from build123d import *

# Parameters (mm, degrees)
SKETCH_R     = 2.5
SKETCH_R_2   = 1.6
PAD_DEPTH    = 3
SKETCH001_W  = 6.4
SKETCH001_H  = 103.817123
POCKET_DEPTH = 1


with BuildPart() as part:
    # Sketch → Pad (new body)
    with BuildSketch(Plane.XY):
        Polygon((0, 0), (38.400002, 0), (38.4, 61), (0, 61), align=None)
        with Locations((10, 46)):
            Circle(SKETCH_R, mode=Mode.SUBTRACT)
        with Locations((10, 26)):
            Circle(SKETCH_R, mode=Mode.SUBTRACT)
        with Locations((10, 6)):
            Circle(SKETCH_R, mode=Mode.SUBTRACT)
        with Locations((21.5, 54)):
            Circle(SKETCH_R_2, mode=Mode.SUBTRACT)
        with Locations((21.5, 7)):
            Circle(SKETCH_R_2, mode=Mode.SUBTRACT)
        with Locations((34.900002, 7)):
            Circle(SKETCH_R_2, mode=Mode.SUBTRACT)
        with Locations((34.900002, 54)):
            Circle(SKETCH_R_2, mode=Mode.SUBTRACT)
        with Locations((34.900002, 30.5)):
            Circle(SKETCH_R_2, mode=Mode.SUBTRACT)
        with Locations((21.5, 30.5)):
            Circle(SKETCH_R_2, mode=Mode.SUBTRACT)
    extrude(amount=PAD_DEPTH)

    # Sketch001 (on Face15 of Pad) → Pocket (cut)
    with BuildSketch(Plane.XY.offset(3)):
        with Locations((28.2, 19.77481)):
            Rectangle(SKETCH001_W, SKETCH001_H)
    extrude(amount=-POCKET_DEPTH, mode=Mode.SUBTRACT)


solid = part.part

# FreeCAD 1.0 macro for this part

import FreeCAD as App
import Part
import Sketcher
Q = App.Units.Quantity


def add_polygon(sketch, points):
    """Adds a closed chain of lines whose ends are joined by coincident constraints."""
    first, n = sketch.GeometryCount, len(points)
    for a, b in zip(points, points[1:] + points[:1]):
        sketch.addGeometry(Part.LineSegment(App.Vector(*a, 0), App.Vector(*b, 0)), False)
    for i in range(n):
        sketch.addConstraint(Sketcher.Constraint("Coincident", first + i, 2, first + (i + 1) % n, 1))

doc = App.newDocument("Part")
params = doc.addObject("Spreadsheet::Sheet", "Params")
for row, (alias, value) in enumerate([
    ("sketch1_diameter", "5 mm"),
    ("sketch1_diameter2", "3.2 mm"),
    ("sketch1_height", "61 mm"),
    ("sketch1_width", "38.4 mm"),
    ("pad1_length", "3 mm"),
    ("sketch2_width", "6.4 mm"),
    ("pocket1_length", "1 mm"),
], start=1):
    params.set(f"A{row}", alias)
    params.set(f"B{row}", "=" + value)
    params.setAlias(f"B{row}", alias)

body = doc.addObject("PartDesign::Body", "Body")

sketch1 = body.newObject("Sketcher::SketchObject", "Sketch")
sketch1.AttachmentSupport = (doc.getObject("XY_Plane"), [""])
sketch1.MapMode = "FlatFace"
add_polygon(sketch1, [(0, 0), (38.4, 0), (38.4, 61), (0, 61)])
sketch1.addGeometry(Part.Circle(App.Vector(10, 6, 0), App.Vector(0, 0, 1), 2.5), False)
sketch1.addGeometry(Part.Circle(App.Vector(21.5, 7, 0), App.Vector(0, 0, 1), 1.6), False)
sketch1.addGeometry(Part.Circle(App.Vector(10, 26, 0), App.Vector(0, 0, 1), 2.5), False)
sketch1.addGeometry(Part.Circle(App.Vector(34.9, 7, 0), App.Vector(0, 0, 1), 1.6), False)
sketch1.addGeometry(Part.Circle(App.Vector(21.5, 30.5, 0), App.Vector(0, 0, 1), 1.6), False)
sketch1.addGeometry(Part.Circle(App.Vector(10, 46, 0), App.Vector(0, 0, 1), 2.5), False)
sketch1.addGeometry(Part.Circle(App.Vector(21.5, 54, 0), App.Vector(0, 0, 1), 1.6), False)
sketch1.addGeometry(Part.Circle(App.Vector(34.9, 30.5, 0), App.Vector(0, 0, 1), 1.6), False)
sketch1.addGeometry(Part.Circle(App.Vector(34.9, 54, 0), App.Vector(0, 0, 1), 1.6), False)
sketch1.addConstraint([
    Sketcher.Constraint("Horizontal", 0),
    Sketcher.Constraint("Horizontal", 2),
    Sketcher.Constraint("Vertical", 3),
    Sketcher.Constraint("Coincident", 3, 2, -1, 1),
    Sketcher.Constraint("Equal", 4, 6),
    Sketcher.Constraint("Equal", 5, 7),
    Sketcher.Constraint("Equal", 7, 8),
    Sketcher.Constraint("Equal", 6, 9),
    Sketcher.Constraint("Equal", 8, 10),
    Sketcher.Constraint("Equal", 10, 11),
    Sketcher.Constraint("Equal", 11, 12),
    Sketcher.Constraint("Horizontal", 5, 3, 7, 3),
    Sketcher.Constraint("Horizontal", 8, 3, 11, 3),
    Sketcher.Constraint("Horizontal", 10, 3, 12, 3),
    Sketcher.Constraint("Vertical", 4, 3, 6, 3),
    Sketcher.Constraint("Vertical", 5, 3, 8, 3),
    Sketcher.Constraint("Vertical", 6, 3, 9, 3),
    Sketcher.Constraint("Vertical", 8, 3, 10, 3),
    Sketcher.Constraint("Vertical", 7, 3, 11, 3),
    Sketcher.Constraint("Vertical", 11, 3, 12, 3),
    Sketcher.Constraint("Diameter", 4, 5.0),
    Sketcher.Constraint("Diameter", 5, 3.2),
    Sketcher.Constraint("DistanceY", 3, 2, 3, 1, 61.0),
    Sketcher.Constraint("Angle", 1, Q("90.000002 deg")),
    Sketcher.Constraint("DistanceX", 2, 2, 2, 1, 38.4),
    Sketcher.Constraint("DistanceX", -1, 1, 4, 3, 10.0),
    Sketcher.Constraint("DistanceY", -1, 1, 4, 3, 6.0),
    Sketcher.Constraint("DistanceY", -1, 1, 5, 3, 7.0),
    Sketcher.Constraint("DistanceY", -1, 1, 6, 3, 26.0),
    Sketcher.Constraint("DistanceY", -1, 1, 9, 3, 46.0),
    Sketcher.Constraint("DistanceY", -1, 1, 10, 3, 54.0),
    Sketcher.Constraint("DistanceX", -1, 1, 5, 3, 21.5),
    Sketcher.Constraint("DistanceY", -1, 1, 8, 3, 30.5),
    Sketcher.Constraint("DistanceX", 7, 3, 0, 2, 3.5),
])
sketch1.setExpression("Constraints[24]", "Params.sketch1_diameter")
sketch1.setExpression("Constraints[25]", "Params.sketch1_diameter2")
sketch1.setExpression("Constraints[26]", "Params.sketch1_height")
sketch1.setExpression("Constraints[28]", "Params.sketch1_width")
pad1 = body.newObject("PartDesign::Pad", "Pad")
pad1.Profile = sketch1
pad1.setExpression("Length", "Params.pad1_length")

sketch2 = body.newObject("Sketcher::SketchObject", "Sketch001")
sketch2.AttachmentSupport = (doc.getObject("XY_Plane"), [""])
sketch2.MapMode = "FlatFace"
sketch2.AttachmentOffset = App.Placement(App.Vector(0, 0, 3), App.Rotation())
add_polygon(sketch2, [(25, 72), (25, -32), (31, -32), (31, 72)])
sketch2.addConstraint([
    Sketcher.Constraint("Vertical", 0),
    Sketcher.Constraint("Horizontal", 1),
    Sketcher.Constraint("Vertical", 2),
    Sketcher.Constraint("Horizontal", 3),
    Sketcher.Constraint("DistanceX", 1, 1, 1, 2, 6.4),
    Sketcher.Constraint("DistanceX", -1, 1, 0, 2, 25.0),
    Sketcher.Constraint("DistanceY", 0, 2, 0, 1, 103.817123),
    Sketcher.Constraint("DistanceY", 0, 2, -1, 1, 32.133752),
])
sketch2.setExpression("Constraints[8]", "Params.sketch2_width")
pocket1 = body.newObject("PartDesign::Pocket", "Pocket")
pocket1.Profile = sketch2
pocket1.setExpression("Length", "Params.pocket1_length")

doc.recompute()
